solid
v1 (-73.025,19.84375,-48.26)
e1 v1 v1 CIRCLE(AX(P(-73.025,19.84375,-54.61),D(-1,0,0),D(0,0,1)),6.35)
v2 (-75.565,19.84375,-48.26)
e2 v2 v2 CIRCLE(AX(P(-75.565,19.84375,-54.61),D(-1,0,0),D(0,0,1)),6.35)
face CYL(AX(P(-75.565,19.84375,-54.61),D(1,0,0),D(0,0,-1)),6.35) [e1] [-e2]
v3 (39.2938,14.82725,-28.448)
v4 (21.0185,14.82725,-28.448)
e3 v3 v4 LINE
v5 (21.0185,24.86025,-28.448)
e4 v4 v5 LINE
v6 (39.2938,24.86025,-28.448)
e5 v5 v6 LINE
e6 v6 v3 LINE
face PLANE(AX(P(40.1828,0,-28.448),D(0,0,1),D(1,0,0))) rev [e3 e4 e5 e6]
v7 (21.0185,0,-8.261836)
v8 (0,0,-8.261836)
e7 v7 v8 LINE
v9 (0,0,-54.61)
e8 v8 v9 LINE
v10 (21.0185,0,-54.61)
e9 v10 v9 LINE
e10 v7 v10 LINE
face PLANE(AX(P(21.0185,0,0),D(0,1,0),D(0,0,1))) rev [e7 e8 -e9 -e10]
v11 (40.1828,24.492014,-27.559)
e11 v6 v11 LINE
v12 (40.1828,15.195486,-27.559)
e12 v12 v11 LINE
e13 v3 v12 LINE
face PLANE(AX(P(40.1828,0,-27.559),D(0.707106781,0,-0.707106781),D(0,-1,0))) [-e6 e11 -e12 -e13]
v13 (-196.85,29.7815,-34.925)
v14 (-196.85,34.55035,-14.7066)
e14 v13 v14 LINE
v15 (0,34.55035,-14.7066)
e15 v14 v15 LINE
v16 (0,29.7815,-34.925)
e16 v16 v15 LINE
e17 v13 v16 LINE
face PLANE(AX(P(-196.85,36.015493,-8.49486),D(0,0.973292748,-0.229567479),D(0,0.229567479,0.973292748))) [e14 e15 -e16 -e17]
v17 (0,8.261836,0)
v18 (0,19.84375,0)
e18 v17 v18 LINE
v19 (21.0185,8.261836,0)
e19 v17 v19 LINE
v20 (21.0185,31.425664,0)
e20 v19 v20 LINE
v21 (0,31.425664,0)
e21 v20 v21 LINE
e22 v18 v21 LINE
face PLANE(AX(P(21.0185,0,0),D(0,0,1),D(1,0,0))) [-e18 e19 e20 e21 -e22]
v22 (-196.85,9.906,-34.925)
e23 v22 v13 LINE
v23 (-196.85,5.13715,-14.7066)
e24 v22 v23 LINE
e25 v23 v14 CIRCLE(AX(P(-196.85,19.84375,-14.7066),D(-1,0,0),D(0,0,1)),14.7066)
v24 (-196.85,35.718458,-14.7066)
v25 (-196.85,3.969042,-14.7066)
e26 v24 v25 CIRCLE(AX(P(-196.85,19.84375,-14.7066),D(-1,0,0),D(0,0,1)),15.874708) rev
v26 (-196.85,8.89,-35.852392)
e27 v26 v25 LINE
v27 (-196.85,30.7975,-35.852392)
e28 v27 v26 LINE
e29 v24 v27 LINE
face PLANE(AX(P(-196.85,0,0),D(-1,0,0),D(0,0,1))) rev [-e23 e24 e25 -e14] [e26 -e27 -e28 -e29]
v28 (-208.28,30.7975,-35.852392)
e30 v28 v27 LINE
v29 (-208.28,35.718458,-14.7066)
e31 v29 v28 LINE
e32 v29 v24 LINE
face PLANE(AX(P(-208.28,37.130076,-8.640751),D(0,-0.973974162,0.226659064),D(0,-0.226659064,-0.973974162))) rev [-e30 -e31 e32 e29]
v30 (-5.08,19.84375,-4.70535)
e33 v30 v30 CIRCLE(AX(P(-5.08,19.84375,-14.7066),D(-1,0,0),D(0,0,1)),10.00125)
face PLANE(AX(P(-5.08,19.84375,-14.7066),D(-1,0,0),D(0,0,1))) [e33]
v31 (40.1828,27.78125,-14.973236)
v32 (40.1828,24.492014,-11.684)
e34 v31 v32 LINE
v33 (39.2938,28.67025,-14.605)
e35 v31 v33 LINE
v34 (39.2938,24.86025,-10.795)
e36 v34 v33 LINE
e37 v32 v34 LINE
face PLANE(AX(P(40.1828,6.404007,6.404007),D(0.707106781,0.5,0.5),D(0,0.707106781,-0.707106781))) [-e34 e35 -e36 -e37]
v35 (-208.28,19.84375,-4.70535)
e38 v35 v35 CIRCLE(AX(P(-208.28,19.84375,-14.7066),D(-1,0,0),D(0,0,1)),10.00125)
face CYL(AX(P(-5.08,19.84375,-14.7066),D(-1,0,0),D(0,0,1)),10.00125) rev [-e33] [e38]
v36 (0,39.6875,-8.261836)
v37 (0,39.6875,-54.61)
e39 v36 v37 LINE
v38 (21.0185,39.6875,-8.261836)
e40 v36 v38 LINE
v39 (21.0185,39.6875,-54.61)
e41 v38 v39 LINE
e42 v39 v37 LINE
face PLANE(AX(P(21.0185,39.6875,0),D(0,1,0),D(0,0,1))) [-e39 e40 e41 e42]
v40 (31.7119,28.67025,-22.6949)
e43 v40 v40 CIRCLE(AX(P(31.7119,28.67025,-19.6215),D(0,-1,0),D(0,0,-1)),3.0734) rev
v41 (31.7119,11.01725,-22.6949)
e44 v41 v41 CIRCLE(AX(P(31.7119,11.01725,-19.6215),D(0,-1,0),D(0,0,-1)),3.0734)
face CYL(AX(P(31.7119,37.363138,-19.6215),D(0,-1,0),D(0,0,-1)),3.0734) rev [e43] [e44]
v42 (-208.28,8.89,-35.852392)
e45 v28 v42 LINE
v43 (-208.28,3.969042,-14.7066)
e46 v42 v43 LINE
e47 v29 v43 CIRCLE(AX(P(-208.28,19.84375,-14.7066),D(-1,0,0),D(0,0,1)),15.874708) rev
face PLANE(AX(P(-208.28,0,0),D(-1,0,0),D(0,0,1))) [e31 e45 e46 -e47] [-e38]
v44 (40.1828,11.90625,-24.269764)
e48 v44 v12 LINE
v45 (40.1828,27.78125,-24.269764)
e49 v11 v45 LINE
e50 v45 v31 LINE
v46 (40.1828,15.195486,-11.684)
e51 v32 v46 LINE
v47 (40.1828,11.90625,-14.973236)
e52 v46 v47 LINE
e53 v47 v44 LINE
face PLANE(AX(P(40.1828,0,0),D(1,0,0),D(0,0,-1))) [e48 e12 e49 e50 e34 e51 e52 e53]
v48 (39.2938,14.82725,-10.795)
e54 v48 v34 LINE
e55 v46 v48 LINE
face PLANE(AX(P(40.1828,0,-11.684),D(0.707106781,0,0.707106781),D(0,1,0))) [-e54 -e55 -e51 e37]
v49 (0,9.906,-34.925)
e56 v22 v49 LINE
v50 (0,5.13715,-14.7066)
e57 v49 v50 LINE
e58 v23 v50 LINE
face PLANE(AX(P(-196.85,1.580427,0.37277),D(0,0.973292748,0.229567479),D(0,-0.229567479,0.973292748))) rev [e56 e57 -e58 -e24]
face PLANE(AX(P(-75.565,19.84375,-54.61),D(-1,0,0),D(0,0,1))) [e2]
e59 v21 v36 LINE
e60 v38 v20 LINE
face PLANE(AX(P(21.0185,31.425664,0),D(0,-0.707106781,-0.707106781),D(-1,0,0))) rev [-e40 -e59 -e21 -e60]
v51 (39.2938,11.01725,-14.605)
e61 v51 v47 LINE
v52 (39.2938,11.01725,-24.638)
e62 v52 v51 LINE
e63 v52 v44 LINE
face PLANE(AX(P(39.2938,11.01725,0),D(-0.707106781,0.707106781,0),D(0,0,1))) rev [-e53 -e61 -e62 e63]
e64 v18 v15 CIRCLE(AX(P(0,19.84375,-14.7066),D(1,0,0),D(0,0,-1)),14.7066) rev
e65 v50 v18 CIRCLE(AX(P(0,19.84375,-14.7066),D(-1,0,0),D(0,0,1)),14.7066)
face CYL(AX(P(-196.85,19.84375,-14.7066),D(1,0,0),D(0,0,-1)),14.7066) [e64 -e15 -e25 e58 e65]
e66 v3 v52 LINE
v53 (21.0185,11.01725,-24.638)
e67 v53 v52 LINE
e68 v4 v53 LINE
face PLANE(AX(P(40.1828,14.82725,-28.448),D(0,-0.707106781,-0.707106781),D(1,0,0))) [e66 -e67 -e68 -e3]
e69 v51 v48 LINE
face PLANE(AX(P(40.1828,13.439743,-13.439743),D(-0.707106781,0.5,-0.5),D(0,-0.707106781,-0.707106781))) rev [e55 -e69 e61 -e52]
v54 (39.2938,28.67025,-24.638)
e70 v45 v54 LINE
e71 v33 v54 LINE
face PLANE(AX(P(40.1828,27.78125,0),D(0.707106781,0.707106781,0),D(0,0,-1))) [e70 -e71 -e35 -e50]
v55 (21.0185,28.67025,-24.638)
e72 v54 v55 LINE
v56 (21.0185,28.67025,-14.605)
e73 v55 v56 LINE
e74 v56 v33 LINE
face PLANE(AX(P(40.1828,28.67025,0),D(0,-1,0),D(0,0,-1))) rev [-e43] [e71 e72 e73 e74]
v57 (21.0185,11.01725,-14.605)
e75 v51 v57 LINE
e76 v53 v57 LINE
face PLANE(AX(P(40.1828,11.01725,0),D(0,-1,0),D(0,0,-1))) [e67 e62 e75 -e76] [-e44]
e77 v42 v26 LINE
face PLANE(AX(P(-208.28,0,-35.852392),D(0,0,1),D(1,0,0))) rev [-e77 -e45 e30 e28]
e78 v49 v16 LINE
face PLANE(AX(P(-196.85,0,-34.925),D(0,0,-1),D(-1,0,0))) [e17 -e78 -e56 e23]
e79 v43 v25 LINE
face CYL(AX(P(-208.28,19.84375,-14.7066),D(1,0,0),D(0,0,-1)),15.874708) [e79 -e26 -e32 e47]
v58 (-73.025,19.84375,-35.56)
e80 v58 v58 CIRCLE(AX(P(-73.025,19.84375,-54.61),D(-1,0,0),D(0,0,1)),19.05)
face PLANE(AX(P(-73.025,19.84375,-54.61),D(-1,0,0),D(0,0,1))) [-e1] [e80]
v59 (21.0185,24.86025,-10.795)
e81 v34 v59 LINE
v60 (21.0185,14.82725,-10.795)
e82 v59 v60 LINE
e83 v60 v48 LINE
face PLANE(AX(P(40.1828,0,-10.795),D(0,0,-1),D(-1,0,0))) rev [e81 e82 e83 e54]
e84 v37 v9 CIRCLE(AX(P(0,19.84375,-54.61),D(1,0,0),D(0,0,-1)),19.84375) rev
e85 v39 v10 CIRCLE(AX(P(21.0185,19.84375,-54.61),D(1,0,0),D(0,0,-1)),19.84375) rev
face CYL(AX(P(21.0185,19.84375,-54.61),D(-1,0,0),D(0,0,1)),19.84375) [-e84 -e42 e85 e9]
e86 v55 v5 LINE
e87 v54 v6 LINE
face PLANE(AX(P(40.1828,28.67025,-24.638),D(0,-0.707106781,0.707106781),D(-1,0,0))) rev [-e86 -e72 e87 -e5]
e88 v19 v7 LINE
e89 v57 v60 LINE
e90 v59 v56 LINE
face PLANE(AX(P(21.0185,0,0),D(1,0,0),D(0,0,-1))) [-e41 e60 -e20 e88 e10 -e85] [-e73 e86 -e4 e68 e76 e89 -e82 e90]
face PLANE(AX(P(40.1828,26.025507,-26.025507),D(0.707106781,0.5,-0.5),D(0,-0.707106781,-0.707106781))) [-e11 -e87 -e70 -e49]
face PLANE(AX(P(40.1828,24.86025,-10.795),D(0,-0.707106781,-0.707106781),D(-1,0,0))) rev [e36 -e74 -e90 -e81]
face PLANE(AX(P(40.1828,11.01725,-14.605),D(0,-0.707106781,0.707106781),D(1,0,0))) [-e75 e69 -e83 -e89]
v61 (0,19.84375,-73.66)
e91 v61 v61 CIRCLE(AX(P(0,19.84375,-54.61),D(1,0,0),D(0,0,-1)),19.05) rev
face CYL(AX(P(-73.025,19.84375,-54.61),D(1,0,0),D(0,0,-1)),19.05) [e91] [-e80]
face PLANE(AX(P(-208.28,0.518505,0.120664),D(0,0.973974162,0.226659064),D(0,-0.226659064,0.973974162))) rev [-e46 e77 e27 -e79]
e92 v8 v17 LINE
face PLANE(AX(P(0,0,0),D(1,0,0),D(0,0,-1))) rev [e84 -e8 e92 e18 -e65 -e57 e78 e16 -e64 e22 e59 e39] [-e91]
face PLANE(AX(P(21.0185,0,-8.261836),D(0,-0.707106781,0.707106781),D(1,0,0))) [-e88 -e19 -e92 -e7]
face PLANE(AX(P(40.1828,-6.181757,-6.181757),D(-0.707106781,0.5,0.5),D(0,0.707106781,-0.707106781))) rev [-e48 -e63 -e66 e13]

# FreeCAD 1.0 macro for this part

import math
import FreeCAD as App
import Part
import Sketcher
from FreeCAD import Vector
Q = App.Units.Quantity


def edges_at(feature, points):
    """Names of the edges that pass closest to the given points."""
    edges = feature.Shape.Edges
    near = lambda p: min(range(len(edges)), key=lambda i: edges[i].distToShape(Part.Vertex(*p))[0])
    return sorted({f"Edge{near(p) + 1}" for p in points})

doc = App.newDocument("Part")
body = doc.addObject("PartDesign::Body", "Body")

# Sketch on YZ plane
sketch1 = doc.addObject("Sketcher::SketchObject", "Sketch")
body.addObject(sketch1)
sketch1.AttachmentSupport = (doc.YZ_Plane, [""])
sketch1.MapMode = "FlatFace"
sketch1.addGeometry([
    Part.LineSegment(Vector(40, 0, 0), Vector(0, 0, 0)),
    Part.LineSegment(Vector(0, 0, 0), Vector(0, -55, 0)),
    Part.ArcOfCircle(Part.Circle(Vector(20, -55, 0), Vector(0, 0, 1), 20), math.radians(180), math.radians(360)),
    Part.LineSegment(Vector(40, -55, 0), Vector(40, 0, 0)),
], False)
sketch1.addConstraint([
    Sketcher.Constraint("Coincident", 0, 2, 1, 1),
    Sketcher.Constraint("Tangent", 1, 2, 2, 1),
    Sketcher.Constraint("Tangent", 2, 2, 3, 1),
    Sketcher.Constraint("Coincident", 3, 2, 0, 1),
    Sketcher.Constraint("Horizontal", 0),
    Sketcher.Constraint("Vertical", 1),
    Sketcher.Constraint("Vertical", 3),
    Sketcher.Constraint("Coincident", 0, 2, -1, 1),
    Sketcher.Constraint("Radius", 2, Q("0.78125 in")),
    Sketcher.Constraint("DistanceY", 1, 2, 1, 1, Q("2.15 in")),
])
pad1 = doc.addObject("PartDesign::Pad", "Pad")
body.addObject(pad1)
pad1.Profile = sketch1
pad1.Length = Q("0.8275 in")
doc.recompute()

chamfer = doc.addObject("PartDesign::Chamfer", "Chamfer")
body.addObject(chamfer)
chamfer.Base = (pad1, edges_at(pad1, [(10.509, 0, 0), (10.509, 39.688, 0)]))
chamfer.Size = 8.261836

# Sketch on YZ plane
sketch2 = doc.addObject("Sketcher::SketchObject", "Sketch001")
body.addObject(sketch2)
sketch2.AttachmentSupport = (doc.YZ_Plane, [""])
sketch2.MapMode = "FlatFace"
sketch2.addGeometry(Part.Circle(Vector(20, -55, 0), Vector(0, 0, 1), 19), False)
sketch2.addConstraint([
    Sketcher.Constraint("Diameter", 0, Q("1.5 in")),
    Sketcher.Constraint("DistanceY", 0, 3, -1, 1, Q("2.15 in")),
    Sketcher.Constraint("DistanceX", -1, 1, 0, 3, Q("0.78125 in")),
])
pad2 = doc.addObject("PartDesign::Pad", "Pad001")
body.addObject(pad2)
pad2.Profile = sketch2
pad2.Length = Q("2.875 in")
pad2.Reversed = True

# Sketch on YZ plane
sketch3 = doc.addObject("Sketcher::SketchObject", "Sketch002")
body.addObject(sketch3)
sketch3.AttachmentSupport = (doc.YZ_Plane, [""])
sketch3.MapMode = "FlatFace"
sketch3.AttachmentOffset = App.Placement(Vector(0, 0, -2.875 * 25.4), App.Rotation())
sketch3.addGeometry(Part.Circle(Vector(20, -55, 0), Vector(0, 0, 1), 6), False)
sketch3.addConstraint([
    Sketcher.Constraint("Diameter", 0, Q("0.5 in")),
    Sketcher.Constraint("DistanceY", 0, 3, -1, 1, Q("2.15 in")),
    Sketcher.Constraint("DistanceX", -1, 1, 0, 3, Q("0.78125 in")),
])
pad3 = doc.addObject("PartDesign::Pad", "Pad002")
body.addObject(pad3)
pad3.Profile = sketch3
pad3.Length = Q("0.1 in")
pad3.Reversed = True

# Sketch on YZ plane
sketch4 = doc.addObject("Sketcher::SketchObject", "Sketch003")
body.addObject(sketch4)
sketch4.AttachmentSupport = (doc.YZ_Plane, [""])
sketch4.MapMode = "FlatFace"
sketch4.addGeometry([
    Part.ArcOfCircle(Part.Circle(Vector(20, -15, 0), Vector(0, 0, 1), 15), math.radians(90), math.radians(180)),  # 0
    Part.ArcOfCircle(Part.Circle(Vector(20, -15, 0), Vector(0, 0, 1), 15), math.radians(0), math.radians(90)),  # 1
    Part.LineSegment(Vector(35, -15, 0), Vector(30, -35, 0)),  # 2
    Part.LineSegment(Vector(30, -35, 0), Vector(10, -35, 0)),  # 3
    Part.LineSegment(Vector(10, -35, 0), Vector(5, -15, 0)),  # 4
], False)
sketch4.addConstraint([
    Sketcher.Constraint("Tangent", 0, 1, 1, 2),
    Sketcher.Constraint("Coincident", 1, 1, 2, 1),
    Sketcher.Constraint("Coincident", 2, 2, 3, 1),
    Sketcher.Constraint("Coincident", 3, 2, 4, 1),
    Sketcher.Constraint("Coincident", 4, 2, 0, 2),
    Sketcher.Constraint("Horizontal", 3),
    Sketcher.Constraint("Equal", 0, 1),
    Sketcher.Constraint("PointOnObject", 0, 1, -1),
    Sketcher.Constraint("Horizontal", 0, 3, 1, 1),
    Sketcher.Constraint("Horizontal", 1, 1, 4, 2),
    Sketcher.Constraint("Vertical", 1, 3, 0, 1),
    Sketcher.Constraint("Equal", 2, 4),
    Sketcher.Constraint("Radius", 0, Q("0.579 in")),
    Sketcher.Constraint("DistanceX", -1, 1, 3, 2, Q("0.39 in")),
    Sketcher.Constraint("DistanceX", 3, 2, 3, 1, Q("0.7825 in")),
    Sketcher.Constraint("DistanceY", 2, 2, -1, 1, Q("1.375 in")),
])
pad4 = doc.addObject("PartDesign::Pad", "Pad003")
body.addObject(pad4)
pad4.Profile = sketch4
pad4.Length = Q("7.75 in")
pad4.Reversed = True

# Sketch on YZ plane
sketch5 = doc.addObject("Sketcher::SketchObject", "Sketch004")
body.addObject(sketch5)
sketch5.AttachmentSupport = (doc.YZ_Plane, [""])
sketch5.MapMode = "FlatFace"
sketch5.AttachmentOffset = App.Placement(Vector(0, 0, -7.75 * 25.4), App.Rotation())
sketch5.addGeometry([
    Part.ArcOfCircle(Part.Circle(Vector(20, -15, 0), Vector(0, 0, 1), 16), math.radians(0), math.radians(90)),  # 0
    Part.LineSegment(Vector(36, -15, 0), Vector(31, -36, 0)),  # 1
    Part.LineSegment(Vector(31, -36, 0), Vector(9, -36, 0)),  # 2
    Part.LineSegment(Vector(9, -36, 0), Vector(4, -15, 0)),  # 3
    Part.ArcOfCircle(Part.Circle(Vector(20, -15, 0), Vector(0, 0, 1), 16), math.radians(90), math.radians(180)),  # 4
], False)
sketch5.addConstraint([
    Sketcher.Constraint("Coincident", 0, 1, 1, 1),
    Sketcher.Constraint("Coincident", 1, 2, 2, 1),
    Sketcher.Constraint("Coincident", 2, 2, 3, 1),
    Sketcher.Constraint("Coincident", 3, 2, 4, 2),
    Sketcher.Constraint("Tangent", 4, 1, 0, 2),
    Sketcher.Constraint("Horizontal", 2),
    Sketcher.Constraint("Equal", 0, 4),
    Sketcher.Constraint("Horizontal", 4, 3, 0, 1),
    Sketcher.Constraint("Horizontal", 0, 1, 3, 2),
    Sketcher.Constraint("Vertical", 0, 3, 4, 1),
    Sketcher.Constraint("Equal", 1, 3),
    Sketcher.Constraint("DistanceX", -1, 1, 2, 2, Q("0.35 in")),
    Sketcher.Constraint("DistanceX", 2, 2, 2, 1, Q("0.8625 in")),
    Sketcher.Constraint("DistanceY", 0, 3, -1, 1, Q("0.579 in")),
    Sketcher.Constraint("Radius", 0, 15.874708),
    Sketcher.Constraint("DistanceY", 1, 2, 4, 1, Q("1.4575 in")),
])
pad5 = doc.addObject("PartDesign::Pad", "Pad004")
body.addObject(pad5)
pad5.Profile = sketch5
pad5.Length = Q("0.45 in")
pad5.Reversed = True

# Sketch on YZ plane
sketch6 = doc.addObject("Sketcher::SketchObject", "Sketch005")
body.addObject(sketch6)
sketch6.AttachmentSupport = (doc.YZ_Plane, [""])
sketch6.MapMode = "FlatFace"
sketch6.AttachmentOffset = App.Placement(Vector(0, 0, -8.2 * 25.4), App.Rotation())
sketch6.addGeometry(Part.Circle(Vector(20, -15, 0), Vector(0, 0, 1), 10), False)
sketch6.addConstraint([
    Sketcher.Constraint("Diameter", 0, Q("0.7875 in")),
    Sketcher.Constraint("DistanceX", -1, 1, 0, 3, Q("0.78125 in")),
    Sketcher.Constraint("DistanceY", 0, 3, -1, 1, Q("0.579 in")),
])
pocket1 = doc.addObject("PartDesign::Pocket", "Pocket")
body.addObject(pocket1)
pocket1.Profile = sketch6
pocket1.Length = Q("8 in")
pocket1.Reversed = True

# Sketch on YZ plane
sketch7 = doc.addObject("Sketcher::SketchObject", "Sketch006")
body.addObject(sketch7)
sketch7.AttachmentSupport = (doc.YZ_Plane, [""])
sketch7.MapMode = "FlatFace"
sketch7.AttachmentOffset = App.Placement(Vector(0, 0, 0.8275 * 25.4), App.Rotation())
sketch7.addGeometry([
    Part.LineSegment(Vector(11, -11, 0), Vector(11, -28, 0)),
    Part.LineSegment(Vector(11, -28, 0), Vector(29, -28, 0)),
    Part.LineSegment(Vector(29, -28, 0), Vector(29, -11, 0)),
    Part.LineSegment(Vector(29, -11, 0), Vector(11, -11, 0)),
], False)
sketch7.addConstraint([
    Sketcher.Constraint("Coincident", 0, 2, 1, 1),
    Sketcher.Constraint("Coincident", 1, 2, 2, 1),
    Sketcher.Constraint("Coincident", 2, 2, 3, 1),
    Sketcher.Constraint("Coincident", 3, 2, 0, 1),
    Sketcher.Constraint("Vertical", 0),
    Sketcher.Constraint("Horizontal", 1),
    Sketcher.Constraint("Vertical", 2),
    Sketcher.Constraint("Horizontal", 3),
    Sketcher.Constraint("Equal", 3, 0),
    Sketcher.Constraint("DistanceX", 1, 1, 1, 2, Q("0.695 in")),
    Sketcher.Constraint("DistanceY", 0, 2, -1, 1, Q("1.12 in")),
    Sketcher.Constraint("DistanceX", -1, 1, 0, 2, 11.01725),
])
pad6 = doc.addObject("PartDesign::Pad", "Pad005")
body.addObject(pad6)
pad6.Profile = sketch7
pad6.Length = Q("0.7545 in")
doc.recompute()

chamfer2 = doc.addObject("PartDesign::Chamfer", "Chamfer001")
body.addObject(chamfer2)
chamfer2.Base = (pad6, edges_at(pad6, [
    (30.601, 11.017, -10.795),
    (30.601, 11.017, -28.448),
    (30.601, 28.67, -28.448),
    (30.601, 28.67, -10.795),
]))
chamfer2.Size = Q("0.15 in")

# Sketch on XZ plane
sketch8 = doc.addObject("Sketcher::SketchObject", "Sketch007")
body.addObject(sketch8)
sketch8.AttachmentSupport = (doc.XZ_Plane, [""])
sketch8.MapMode = "FlatFace"
sketch8.AttachmentOffset = App.Placement(Vector(0, 0, -11.01725), App.Rotation())
sketch8.addGeometry(Part.Circle(Vector(31.7, -19.6, 0), Vector(0, 0, 1), 3.1), False)
sketch8.addConstraint([
    Sketcher.Constraint("Diameter", 0, Q("0.242 in")),
    Sketcher.Constraint("DistanceX", -1, 1, 0, 3, Q("1.2485 in")),
    Sketcher.Constraint("DistanceY", 0, 3, -1, 1, Q("0.7725 in")),
])
pocket2 = doc.addObject("PartDesign::Pocket", "Pocket001")
body.addObject(pocket2)
pocket2.Profile = sketch8
pocket2.Length = Q("0.695 in")
doc.recompute()

chamfer3 = doc.addObject("PartDesign::Chamfer", "Chamfer002")
body.addObject(chamfer3)
chamfer3.Base = (pocket2, edges_at(pocket2, [
    (40.183, 19.844, -10.795),
    (40.183, 28.67, -19.622),
    (40.183, 11.017, -19.622),
    (40.183, 19.844, -28.448),
    (40.183, 12.922, -12.7),
    (40.183, 12.922, -26.543),
    (40.183, 26.765, -26.543),
    (40.183, 26.765, -12.7),
]))
chamfer3.Size = Q("0.035 in")

doc.recompute()
